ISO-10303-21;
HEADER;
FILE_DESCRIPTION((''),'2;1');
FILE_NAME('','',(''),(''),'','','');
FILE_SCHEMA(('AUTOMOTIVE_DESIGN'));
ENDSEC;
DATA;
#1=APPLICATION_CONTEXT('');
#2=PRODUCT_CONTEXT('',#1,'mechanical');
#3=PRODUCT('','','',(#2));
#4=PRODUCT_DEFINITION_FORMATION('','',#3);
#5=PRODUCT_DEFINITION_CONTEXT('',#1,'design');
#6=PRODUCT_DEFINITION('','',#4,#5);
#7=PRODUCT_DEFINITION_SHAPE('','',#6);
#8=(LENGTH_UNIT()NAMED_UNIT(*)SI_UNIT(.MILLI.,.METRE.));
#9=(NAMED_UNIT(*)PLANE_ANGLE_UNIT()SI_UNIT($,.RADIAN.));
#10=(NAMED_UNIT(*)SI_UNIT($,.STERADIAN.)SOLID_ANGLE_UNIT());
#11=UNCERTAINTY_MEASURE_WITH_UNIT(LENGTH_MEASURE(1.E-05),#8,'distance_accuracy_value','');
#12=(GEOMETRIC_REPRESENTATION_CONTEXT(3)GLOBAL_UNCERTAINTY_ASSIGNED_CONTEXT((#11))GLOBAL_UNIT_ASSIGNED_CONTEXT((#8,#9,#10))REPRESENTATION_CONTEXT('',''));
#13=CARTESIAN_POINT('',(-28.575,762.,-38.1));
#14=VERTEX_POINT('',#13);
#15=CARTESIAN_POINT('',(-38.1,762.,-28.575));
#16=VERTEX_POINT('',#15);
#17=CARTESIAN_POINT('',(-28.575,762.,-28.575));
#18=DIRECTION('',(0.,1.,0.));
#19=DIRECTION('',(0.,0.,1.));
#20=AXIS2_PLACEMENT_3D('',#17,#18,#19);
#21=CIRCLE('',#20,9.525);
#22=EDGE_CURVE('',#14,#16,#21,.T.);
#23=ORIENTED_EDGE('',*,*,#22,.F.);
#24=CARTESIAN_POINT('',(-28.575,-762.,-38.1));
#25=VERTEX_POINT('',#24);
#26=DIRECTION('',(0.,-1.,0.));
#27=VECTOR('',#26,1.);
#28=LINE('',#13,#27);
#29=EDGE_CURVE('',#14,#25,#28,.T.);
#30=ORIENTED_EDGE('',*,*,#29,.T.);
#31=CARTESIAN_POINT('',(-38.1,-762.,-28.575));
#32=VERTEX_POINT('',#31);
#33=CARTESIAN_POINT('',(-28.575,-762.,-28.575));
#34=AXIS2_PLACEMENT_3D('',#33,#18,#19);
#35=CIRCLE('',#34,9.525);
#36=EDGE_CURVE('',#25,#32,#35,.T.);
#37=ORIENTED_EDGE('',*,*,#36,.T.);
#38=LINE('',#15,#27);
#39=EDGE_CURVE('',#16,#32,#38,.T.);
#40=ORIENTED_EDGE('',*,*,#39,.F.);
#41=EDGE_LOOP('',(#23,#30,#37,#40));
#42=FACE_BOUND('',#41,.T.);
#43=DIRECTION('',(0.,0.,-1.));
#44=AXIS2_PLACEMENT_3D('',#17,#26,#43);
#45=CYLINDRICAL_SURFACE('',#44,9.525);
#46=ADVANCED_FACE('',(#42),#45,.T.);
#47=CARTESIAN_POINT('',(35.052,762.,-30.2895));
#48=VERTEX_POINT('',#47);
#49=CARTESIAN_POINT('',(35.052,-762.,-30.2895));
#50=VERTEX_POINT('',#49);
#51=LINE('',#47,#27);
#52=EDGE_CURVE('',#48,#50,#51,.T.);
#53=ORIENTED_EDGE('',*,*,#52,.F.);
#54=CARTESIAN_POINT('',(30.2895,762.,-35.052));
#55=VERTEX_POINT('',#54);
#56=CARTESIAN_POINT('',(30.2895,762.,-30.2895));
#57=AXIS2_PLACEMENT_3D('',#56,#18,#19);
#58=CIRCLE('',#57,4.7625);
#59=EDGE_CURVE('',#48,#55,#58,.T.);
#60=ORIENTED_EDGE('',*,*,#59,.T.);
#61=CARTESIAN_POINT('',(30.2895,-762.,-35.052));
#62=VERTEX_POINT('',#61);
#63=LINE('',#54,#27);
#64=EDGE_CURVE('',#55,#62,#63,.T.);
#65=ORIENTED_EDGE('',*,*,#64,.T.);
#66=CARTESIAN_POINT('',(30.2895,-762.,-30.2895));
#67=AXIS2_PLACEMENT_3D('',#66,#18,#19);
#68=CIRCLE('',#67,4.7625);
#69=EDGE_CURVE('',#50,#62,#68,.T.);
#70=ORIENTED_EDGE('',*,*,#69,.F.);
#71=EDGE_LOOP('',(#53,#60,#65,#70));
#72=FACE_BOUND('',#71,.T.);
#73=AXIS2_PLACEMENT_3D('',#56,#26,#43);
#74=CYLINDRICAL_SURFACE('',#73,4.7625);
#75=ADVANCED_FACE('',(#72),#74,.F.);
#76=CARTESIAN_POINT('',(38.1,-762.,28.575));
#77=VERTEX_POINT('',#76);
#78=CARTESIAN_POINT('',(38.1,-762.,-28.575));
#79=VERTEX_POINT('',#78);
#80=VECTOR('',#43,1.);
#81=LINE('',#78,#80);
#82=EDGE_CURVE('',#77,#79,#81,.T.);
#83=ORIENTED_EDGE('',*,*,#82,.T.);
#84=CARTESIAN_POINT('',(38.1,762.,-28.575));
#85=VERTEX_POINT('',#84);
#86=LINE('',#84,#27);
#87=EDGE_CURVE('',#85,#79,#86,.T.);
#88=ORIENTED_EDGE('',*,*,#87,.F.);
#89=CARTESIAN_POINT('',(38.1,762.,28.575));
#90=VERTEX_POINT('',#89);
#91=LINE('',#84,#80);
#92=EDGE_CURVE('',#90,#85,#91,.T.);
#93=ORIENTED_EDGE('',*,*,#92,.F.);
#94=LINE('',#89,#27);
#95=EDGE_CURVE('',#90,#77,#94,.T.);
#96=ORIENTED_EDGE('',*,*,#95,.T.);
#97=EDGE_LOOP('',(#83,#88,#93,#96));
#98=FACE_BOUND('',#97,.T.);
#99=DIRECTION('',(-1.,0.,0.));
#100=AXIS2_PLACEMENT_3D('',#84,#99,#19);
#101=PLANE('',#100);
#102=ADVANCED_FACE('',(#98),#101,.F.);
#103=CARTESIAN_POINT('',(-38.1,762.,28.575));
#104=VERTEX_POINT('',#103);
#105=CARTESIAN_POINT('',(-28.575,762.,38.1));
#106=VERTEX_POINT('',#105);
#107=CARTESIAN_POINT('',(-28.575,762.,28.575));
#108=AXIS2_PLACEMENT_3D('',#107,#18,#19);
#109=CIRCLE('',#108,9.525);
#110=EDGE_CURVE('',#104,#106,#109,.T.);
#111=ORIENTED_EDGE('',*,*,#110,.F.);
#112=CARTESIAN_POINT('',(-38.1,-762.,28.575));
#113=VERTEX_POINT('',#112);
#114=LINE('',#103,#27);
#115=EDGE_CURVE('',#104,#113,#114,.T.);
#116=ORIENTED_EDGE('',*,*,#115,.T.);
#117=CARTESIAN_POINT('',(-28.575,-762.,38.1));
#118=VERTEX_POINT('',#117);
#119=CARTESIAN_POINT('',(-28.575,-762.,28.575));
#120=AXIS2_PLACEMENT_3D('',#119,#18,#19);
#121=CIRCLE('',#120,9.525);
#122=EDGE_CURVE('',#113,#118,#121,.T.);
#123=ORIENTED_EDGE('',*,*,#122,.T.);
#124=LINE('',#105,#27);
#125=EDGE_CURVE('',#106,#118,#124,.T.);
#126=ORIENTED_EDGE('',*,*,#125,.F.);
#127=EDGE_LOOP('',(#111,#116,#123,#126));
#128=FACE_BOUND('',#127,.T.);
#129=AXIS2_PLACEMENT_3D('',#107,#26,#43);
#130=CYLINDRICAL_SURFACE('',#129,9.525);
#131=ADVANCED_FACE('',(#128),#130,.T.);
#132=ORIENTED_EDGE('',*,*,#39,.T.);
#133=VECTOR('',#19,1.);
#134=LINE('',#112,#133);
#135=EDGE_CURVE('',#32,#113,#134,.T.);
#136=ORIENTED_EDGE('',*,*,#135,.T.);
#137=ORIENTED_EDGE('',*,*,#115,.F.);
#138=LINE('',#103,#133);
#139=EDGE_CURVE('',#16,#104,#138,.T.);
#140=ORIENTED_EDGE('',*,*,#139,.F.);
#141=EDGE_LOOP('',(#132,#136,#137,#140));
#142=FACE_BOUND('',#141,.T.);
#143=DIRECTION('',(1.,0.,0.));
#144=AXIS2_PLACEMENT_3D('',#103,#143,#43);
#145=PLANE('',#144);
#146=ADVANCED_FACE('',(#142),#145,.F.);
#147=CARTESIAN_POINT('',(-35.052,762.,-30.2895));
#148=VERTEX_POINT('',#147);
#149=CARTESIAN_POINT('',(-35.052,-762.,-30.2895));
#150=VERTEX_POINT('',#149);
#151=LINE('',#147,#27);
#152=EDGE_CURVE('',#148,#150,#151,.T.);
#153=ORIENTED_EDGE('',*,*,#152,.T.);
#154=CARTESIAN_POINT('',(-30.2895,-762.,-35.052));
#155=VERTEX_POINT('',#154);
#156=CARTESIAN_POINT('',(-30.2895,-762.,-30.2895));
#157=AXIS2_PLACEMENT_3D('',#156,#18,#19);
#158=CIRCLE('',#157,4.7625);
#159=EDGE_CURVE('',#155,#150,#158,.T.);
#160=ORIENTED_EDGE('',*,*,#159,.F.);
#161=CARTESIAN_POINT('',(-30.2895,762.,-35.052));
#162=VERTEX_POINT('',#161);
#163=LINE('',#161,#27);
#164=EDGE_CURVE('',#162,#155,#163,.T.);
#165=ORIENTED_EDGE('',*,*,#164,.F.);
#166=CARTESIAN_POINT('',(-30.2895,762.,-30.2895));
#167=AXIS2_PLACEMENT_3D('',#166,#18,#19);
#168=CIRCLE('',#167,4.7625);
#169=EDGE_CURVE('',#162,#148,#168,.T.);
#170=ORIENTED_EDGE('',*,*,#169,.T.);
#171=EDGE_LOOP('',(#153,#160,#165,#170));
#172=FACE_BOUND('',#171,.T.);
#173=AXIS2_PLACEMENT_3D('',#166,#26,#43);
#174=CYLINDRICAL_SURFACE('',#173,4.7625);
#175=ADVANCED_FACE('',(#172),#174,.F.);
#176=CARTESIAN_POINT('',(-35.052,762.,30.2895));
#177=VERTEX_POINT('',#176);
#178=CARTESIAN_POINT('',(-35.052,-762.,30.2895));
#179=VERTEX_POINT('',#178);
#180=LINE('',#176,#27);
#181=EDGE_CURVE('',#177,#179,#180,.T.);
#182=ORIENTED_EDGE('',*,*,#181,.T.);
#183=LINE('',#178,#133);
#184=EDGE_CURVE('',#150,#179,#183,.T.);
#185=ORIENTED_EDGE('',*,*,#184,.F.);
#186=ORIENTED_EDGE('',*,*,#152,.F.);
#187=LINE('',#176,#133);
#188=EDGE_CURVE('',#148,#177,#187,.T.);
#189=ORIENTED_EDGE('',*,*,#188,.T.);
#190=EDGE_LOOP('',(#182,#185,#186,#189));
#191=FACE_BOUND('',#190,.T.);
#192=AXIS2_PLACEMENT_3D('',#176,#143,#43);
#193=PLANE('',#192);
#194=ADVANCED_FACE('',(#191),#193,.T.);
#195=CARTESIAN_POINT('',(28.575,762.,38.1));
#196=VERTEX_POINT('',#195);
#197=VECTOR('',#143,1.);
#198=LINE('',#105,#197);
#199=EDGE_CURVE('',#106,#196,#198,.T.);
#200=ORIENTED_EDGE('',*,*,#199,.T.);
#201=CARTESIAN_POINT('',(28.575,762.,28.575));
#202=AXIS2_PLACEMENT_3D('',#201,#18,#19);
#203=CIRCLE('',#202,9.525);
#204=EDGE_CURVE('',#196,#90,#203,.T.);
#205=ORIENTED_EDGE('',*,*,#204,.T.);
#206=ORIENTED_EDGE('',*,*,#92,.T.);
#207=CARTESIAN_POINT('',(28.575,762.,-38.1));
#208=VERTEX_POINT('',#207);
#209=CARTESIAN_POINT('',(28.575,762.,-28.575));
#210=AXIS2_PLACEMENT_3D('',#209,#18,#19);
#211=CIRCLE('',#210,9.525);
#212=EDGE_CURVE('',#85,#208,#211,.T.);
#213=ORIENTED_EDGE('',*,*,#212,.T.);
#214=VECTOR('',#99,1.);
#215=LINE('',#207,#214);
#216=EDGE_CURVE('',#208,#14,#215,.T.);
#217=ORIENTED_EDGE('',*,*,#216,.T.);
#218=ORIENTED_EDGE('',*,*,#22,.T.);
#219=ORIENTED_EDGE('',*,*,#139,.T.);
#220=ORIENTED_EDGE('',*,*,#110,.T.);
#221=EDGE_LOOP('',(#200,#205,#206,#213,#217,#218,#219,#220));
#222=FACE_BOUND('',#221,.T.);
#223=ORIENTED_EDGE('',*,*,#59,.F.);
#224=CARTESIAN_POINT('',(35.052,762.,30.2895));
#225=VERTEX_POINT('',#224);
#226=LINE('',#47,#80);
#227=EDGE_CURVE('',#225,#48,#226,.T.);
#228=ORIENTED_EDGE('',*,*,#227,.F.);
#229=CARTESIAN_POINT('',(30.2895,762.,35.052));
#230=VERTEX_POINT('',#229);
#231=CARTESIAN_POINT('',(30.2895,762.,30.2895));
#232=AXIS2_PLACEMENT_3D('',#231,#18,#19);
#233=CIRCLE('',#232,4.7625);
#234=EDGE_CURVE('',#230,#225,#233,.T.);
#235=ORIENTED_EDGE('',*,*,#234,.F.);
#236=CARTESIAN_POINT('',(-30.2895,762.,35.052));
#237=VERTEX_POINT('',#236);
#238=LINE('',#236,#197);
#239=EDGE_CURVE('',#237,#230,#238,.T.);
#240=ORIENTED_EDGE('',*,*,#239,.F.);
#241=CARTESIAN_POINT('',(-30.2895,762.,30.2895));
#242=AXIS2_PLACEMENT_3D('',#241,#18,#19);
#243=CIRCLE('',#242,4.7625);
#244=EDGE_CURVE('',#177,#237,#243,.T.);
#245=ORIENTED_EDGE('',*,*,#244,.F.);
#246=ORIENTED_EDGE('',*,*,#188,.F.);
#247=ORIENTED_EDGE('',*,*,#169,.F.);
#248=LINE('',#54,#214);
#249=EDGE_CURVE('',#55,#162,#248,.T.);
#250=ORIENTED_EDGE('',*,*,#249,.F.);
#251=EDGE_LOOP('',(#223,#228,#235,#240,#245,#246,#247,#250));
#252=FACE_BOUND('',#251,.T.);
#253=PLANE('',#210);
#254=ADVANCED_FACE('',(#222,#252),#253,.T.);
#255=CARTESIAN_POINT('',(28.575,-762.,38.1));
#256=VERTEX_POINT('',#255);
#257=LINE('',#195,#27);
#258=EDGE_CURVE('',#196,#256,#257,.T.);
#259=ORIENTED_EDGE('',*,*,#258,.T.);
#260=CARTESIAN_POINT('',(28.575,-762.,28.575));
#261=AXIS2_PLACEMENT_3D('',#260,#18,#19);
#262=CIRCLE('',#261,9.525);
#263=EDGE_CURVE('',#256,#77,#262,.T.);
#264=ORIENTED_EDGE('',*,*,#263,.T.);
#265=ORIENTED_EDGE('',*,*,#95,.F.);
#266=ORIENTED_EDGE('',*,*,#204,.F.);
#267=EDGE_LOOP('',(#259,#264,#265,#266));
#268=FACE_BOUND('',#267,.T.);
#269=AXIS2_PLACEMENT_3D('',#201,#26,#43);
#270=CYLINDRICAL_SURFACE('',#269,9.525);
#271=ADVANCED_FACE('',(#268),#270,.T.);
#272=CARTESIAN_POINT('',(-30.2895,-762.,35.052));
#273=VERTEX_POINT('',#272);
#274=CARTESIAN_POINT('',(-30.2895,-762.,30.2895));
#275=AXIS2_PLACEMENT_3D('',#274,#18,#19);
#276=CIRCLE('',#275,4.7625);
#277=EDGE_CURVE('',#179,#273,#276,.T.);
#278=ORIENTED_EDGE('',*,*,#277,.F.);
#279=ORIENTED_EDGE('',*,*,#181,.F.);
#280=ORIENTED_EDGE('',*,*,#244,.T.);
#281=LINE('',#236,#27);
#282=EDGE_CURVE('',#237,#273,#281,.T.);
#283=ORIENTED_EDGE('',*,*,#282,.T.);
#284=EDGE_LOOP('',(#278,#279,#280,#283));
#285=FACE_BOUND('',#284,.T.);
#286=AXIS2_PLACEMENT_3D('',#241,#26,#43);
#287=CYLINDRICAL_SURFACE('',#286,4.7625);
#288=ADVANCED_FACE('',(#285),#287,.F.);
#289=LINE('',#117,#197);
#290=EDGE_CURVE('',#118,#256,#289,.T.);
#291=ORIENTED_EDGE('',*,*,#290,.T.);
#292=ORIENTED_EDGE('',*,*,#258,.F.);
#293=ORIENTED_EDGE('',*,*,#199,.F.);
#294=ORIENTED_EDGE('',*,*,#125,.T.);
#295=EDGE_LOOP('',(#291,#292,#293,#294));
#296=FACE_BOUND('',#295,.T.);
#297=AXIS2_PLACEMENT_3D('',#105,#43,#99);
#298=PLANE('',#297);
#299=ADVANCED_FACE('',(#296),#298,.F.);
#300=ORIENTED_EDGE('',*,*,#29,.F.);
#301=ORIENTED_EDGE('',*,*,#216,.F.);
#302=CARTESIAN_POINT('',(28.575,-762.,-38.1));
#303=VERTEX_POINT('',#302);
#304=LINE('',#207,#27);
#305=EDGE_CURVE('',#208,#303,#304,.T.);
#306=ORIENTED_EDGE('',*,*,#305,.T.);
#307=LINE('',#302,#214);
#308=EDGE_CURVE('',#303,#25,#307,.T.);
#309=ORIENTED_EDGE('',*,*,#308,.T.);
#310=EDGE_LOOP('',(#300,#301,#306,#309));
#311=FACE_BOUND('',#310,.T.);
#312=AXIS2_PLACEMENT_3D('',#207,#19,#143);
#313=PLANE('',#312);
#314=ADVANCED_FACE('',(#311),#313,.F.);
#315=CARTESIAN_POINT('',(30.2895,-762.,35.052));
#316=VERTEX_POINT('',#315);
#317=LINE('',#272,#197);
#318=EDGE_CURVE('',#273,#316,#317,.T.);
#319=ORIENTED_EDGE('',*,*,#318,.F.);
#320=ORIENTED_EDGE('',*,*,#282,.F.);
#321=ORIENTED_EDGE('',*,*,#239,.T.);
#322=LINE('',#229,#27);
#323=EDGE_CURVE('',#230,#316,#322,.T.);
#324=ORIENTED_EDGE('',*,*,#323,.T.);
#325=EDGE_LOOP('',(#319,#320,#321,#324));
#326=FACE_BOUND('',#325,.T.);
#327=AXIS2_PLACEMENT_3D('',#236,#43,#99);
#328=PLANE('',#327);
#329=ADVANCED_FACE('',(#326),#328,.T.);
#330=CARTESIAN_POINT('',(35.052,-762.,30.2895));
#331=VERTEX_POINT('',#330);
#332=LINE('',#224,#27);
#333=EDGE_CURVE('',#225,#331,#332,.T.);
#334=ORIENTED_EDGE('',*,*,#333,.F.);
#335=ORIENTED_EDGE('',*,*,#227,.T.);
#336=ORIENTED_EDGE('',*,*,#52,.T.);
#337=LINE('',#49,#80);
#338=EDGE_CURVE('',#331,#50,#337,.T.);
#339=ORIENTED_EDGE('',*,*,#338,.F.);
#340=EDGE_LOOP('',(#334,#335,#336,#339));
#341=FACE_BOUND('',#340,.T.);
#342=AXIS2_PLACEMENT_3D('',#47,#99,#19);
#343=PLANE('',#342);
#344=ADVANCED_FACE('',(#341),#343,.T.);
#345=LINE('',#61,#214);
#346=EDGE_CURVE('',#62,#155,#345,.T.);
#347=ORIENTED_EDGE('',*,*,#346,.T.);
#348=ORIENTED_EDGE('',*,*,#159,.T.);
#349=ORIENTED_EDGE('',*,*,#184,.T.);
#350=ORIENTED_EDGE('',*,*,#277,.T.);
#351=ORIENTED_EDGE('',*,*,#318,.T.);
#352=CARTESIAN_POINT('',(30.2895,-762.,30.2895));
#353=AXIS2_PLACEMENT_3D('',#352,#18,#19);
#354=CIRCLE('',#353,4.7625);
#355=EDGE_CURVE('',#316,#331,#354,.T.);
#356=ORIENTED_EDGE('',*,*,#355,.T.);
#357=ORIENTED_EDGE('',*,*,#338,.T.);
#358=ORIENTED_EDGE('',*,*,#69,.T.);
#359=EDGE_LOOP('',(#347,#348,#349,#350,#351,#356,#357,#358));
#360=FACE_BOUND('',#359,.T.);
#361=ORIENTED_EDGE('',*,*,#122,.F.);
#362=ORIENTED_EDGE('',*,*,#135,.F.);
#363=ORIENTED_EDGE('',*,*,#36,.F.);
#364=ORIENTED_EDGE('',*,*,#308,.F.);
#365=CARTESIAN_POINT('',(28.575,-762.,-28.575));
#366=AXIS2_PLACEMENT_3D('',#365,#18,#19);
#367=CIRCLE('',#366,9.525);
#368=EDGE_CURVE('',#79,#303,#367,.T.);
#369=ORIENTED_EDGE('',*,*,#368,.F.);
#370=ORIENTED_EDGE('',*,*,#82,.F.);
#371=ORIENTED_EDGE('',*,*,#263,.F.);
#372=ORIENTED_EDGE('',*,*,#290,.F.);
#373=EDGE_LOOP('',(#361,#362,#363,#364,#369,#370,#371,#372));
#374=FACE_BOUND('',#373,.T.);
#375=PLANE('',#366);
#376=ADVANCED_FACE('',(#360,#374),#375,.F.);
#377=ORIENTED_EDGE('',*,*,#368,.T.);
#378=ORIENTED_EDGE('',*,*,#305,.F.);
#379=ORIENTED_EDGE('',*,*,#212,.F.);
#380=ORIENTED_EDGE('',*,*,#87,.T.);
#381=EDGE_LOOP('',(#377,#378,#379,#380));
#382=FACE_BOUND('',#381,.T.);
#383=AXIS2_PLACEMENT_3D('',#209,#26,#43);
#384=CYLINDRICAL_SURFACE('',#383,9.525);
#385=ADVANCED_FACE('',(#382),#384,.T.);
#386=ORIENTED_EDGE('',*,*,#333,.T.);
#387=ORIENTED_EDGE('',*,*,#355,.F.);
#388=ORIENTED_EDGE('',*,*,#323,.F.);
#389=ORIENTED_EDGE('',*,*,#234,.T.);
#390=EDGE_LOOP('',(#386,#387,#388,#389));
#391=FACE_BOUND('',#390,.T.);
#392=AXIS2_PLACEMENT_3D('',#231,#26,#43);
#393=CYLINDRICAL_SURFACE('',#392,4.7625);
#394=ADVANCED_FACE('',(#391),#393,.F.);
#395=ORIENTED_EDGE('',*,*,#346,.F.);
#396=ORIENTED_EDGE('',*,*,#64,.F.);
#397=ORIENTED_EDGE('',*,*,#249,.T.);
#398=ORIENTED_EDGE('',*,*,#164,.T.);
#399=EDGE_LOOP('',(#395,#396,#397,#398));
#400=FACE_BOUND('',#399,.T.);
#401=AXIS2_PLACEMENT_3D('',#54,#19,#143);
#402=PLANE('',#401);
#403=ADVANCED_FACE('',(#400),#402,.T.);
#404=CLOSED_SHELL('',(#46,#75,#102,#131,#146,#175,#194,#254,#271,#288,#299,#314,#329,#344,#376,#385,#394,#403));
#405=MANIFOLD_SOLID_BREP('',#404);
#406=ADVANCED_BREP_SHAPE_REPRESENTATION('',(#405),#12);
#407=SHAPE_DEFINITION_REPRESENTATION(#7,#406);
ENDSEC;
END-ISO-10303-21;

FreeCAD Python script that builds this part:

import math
import FreeCAD as App
import Part
import Sketcher
Q = App.Units.Quantity

doc = App.newDocument("Part")
body = doc.addObject("PartDesign::Body", "Body")

sketch1 = body.newObject("Sketcher::SketchObject", "Sketch")
sketch1.AttachmentSupport = (doc.getObject("XZ_Plane"), [""])
sketch1.MapMode = "FlatFace"
sketch1.addGeometry(Part.LineSegment(App.Vector(-28.575, 38.1, 0), App.Vector(28.575, 38.1, 0)), False)
sketch1.addGeometry(Part.ArcOfCircle(Part.Circle(App.Vector(28.575, 28.575, 0), App.Vector(0, 0, 1), 9.525), math.radians(0), math.radians(90)), False)
sketch1.addGeometry(Part.LineSegment(App.Vector(38.1, 28.575, 0), App.Vector(38.1, -28.575, 0)), False)
sketch1.addGeometry(Part.ArcOfCircle(Part.Circle(App.Vector(28.575, -28.575, 0), App.Vector(0, 0, 1), 9.525), math.radians(-90), math.radians(0)), False)
sketch1.addGeometry(Part.LineSegment(App.Vector(28.575, -38.1, 0), App.Vector(-28.575, -38.1, 0)), False)
sketch1.addGeometry(Part.ArcOfCircle(Part.Circle(App.Vector(-28.575, -28.575, 0), App.Vector(0, 0, 1), 9.525), math.radians(180), math.radians(270)), False)
sketch1.addGeometry(Part.LineSegment(App.Vector(-38.1, -28.575, 0), App.Vector(-38.1, 28.575, 0)), False)
sketch1.addGeometry(Part.ArcOfCircle(Part.Circle(App.Vector(-28.575, 28.575, 0), App.Vector(0, 0, 1), 9.525), math.radians(90), math.radians(180)), False)
sketch1.addGeometry(Part.LineSegment(App.Vector(30.2895, 35.052, 0), App.Vector(-30.2895, 35.052, 0)), False)
sketch1.addGeometry(Part.ArcOfCircle(Part.Circle(App.Vector(-30.2895, 30.2895, 0), App.Vector(0, 0, 1), 4.7625), math.radians(90), math.radians(180)), False)
sketch1.addGeometry(Part.LineSegment(App.Vector(-35.052, 30.2895, 0), App.Vector(-35.052, -30.2895, 0)), False)
sketch1.addGeometry(Part.ArcOfCircle(Part.Circle(App.Vector(-30.2895, -30.2895, 0), App.Vector(0, 0, 1), 4.7625), math.radians(-180), math.radians(-90)), False)
sketch1.addGeometry(Part.LineSegment(App.Vector(-30.2895, -35.052, 0), App.Vector(30.2895, -35.052, 0)), False)
sketch1.addGeometry(Part.ArcOfCircle(Part.Circle(App.Vector(30.2895, -30.2895, 0), App.Vector(0, 0, 1), 4.7625), math.radians(-90), math.radians(0)), False)
sketch1.addGeometry(Part.LineSegment(App.Vector(35.052, -30.2895, 0), App.Vector(35.052, 30.2895, 0)), False)
sketch1.addGeometry(Part.ArcOfCircle(Part.Circle(App.Vector(30.2895, 30.2895, 0), App.Vector(0, 0, 1), 4.7625), math.radians(0), math.radians(90)), False)
sketch1.addConstraint(Sketcher.Constraint("Tangent", 0, 2, 1, 2))
sketch1.addConstraint(Sketcher.Constraint("Tangent", 1, 1, 2, 1))
sketch1.addConstraint(Sketcher.Constraint("Tangent", 2, 2, 3, 2))
sketch1.addConstraint(Sketcher.Constraint("Tangent", 3, 1, 4, 1))
sketch1.addConstraint(Sketcher.Constraint("Tangent", 4, 2, 5, 2))
sketch1.addConstraint(Sketcher.Constraint("Tangent", 5, 1, 6, 1))
sketch1.addConstraint(Sketcher.Constraint("Tangent", 6, 2, 7, 2))
sketch1.addConstraint(Sketcher.Constraint("Tangent", 7, 1, 0, 1))
sketch1.addConstraint(Sketcher.Constraint("Tangent", 8, 2, 9, 1))
sketch1.addConstraint(Sketcher.Constraint("Tangent", 9, 2, 10, 1))
sketch1.addConstraint(Sketcher.Constraint("Tangent", 10, 2, 11, 1))
sketch1.addConstraint(Sketcher.Constraint("Tangent", 11, 2, 12, 1))
sketch1.addConstraint(Sketcher.Constraint("Tangent", 12, 2, 13, 1))
sketch1.addConstraint(Sketcher.Constraint("Tangent", 13, 2, 14, 1))
sketch1.addConstraint(Sketcher.Constraint("Tangent", 14, 2, 15, 1))
sketch1.addConstraint(Sketcher.Constraint("Tangent", 15, 2, 8, 1))
sketch1.addConstraint(Sketcher.Constraint("Horizontal", 0))
sketch1.addConstraint(Sketcher.Constraint("Vertical", 2))
sketch1.addConstraint(Sketcher.Constraint("Horizontal", 4))
sketch1.addConstraint(Sketcher.Constraint("Vertical", 6))
sketch1.addConstraint(Sketcher.Constraint("Horizontal", 8))
sketch1.addConstraint(Sketcher.Constraint("Vertical", 10))
sketch1.addConstraint(Sketcher.Constraint("Horizontal", 12))
sketch1.addConstraint(Sketcher.Constraint("Vertical", 14))
sketch1.addConstraint(Sketcher.Constraint("Equal", 1, 3))
sketch1.addConstraint(Sketcher.Constraint("Equal", 3, 5))
sketch1.addConstraint(Sketcher.Constraint("Equal", 5, 7))
sketch1.addConstraint(Sketcher.Constraint("Equal", 9, 11))
sketch1.addConstraint(Sketcher.Constraint("Equal", 11, 13))
sketch1.addConstraint(Sketcher.Constraint("Equal", 13, 15))
sketch1.addConstraint(Sketcher.Constraint("Symmetric", 1, 3, 5, 3, -1, 1))
sketch1.addConstraint(Sketcher.Constraint("Symmetric", 9, 3, 13, 3, -1, 1))
sketch1.addConstraint(Sketcher.Constraint("Equal", 4, 2))
sketch1.addConstraint(Sketcher.Constraint("Equal", 12, 10))
sketch1.addConstraint(Sketcher.Constraint("Radius", 1, Q("0.375 in")))
sketch1.addConstraint(Sketcher.Constraint("Radius", 9, Q("0.1875 in")))
sketch1.addConstraint(Sketcher.Constraint("DistanceX", 0, 1, 0, 2, Q("2.25 in")))
sketch1.addConstraint(Sketcher.Constraint("DistanceX", 8, 2, 8, 1, Q("2.385 in")))
pad1 = body.newObject("PartDesign::Pad", "Pad")
pad1.Profile = sketch1
pad1.Length = Q("60 in")
pad1.Midplane = True

doc.recompute()
